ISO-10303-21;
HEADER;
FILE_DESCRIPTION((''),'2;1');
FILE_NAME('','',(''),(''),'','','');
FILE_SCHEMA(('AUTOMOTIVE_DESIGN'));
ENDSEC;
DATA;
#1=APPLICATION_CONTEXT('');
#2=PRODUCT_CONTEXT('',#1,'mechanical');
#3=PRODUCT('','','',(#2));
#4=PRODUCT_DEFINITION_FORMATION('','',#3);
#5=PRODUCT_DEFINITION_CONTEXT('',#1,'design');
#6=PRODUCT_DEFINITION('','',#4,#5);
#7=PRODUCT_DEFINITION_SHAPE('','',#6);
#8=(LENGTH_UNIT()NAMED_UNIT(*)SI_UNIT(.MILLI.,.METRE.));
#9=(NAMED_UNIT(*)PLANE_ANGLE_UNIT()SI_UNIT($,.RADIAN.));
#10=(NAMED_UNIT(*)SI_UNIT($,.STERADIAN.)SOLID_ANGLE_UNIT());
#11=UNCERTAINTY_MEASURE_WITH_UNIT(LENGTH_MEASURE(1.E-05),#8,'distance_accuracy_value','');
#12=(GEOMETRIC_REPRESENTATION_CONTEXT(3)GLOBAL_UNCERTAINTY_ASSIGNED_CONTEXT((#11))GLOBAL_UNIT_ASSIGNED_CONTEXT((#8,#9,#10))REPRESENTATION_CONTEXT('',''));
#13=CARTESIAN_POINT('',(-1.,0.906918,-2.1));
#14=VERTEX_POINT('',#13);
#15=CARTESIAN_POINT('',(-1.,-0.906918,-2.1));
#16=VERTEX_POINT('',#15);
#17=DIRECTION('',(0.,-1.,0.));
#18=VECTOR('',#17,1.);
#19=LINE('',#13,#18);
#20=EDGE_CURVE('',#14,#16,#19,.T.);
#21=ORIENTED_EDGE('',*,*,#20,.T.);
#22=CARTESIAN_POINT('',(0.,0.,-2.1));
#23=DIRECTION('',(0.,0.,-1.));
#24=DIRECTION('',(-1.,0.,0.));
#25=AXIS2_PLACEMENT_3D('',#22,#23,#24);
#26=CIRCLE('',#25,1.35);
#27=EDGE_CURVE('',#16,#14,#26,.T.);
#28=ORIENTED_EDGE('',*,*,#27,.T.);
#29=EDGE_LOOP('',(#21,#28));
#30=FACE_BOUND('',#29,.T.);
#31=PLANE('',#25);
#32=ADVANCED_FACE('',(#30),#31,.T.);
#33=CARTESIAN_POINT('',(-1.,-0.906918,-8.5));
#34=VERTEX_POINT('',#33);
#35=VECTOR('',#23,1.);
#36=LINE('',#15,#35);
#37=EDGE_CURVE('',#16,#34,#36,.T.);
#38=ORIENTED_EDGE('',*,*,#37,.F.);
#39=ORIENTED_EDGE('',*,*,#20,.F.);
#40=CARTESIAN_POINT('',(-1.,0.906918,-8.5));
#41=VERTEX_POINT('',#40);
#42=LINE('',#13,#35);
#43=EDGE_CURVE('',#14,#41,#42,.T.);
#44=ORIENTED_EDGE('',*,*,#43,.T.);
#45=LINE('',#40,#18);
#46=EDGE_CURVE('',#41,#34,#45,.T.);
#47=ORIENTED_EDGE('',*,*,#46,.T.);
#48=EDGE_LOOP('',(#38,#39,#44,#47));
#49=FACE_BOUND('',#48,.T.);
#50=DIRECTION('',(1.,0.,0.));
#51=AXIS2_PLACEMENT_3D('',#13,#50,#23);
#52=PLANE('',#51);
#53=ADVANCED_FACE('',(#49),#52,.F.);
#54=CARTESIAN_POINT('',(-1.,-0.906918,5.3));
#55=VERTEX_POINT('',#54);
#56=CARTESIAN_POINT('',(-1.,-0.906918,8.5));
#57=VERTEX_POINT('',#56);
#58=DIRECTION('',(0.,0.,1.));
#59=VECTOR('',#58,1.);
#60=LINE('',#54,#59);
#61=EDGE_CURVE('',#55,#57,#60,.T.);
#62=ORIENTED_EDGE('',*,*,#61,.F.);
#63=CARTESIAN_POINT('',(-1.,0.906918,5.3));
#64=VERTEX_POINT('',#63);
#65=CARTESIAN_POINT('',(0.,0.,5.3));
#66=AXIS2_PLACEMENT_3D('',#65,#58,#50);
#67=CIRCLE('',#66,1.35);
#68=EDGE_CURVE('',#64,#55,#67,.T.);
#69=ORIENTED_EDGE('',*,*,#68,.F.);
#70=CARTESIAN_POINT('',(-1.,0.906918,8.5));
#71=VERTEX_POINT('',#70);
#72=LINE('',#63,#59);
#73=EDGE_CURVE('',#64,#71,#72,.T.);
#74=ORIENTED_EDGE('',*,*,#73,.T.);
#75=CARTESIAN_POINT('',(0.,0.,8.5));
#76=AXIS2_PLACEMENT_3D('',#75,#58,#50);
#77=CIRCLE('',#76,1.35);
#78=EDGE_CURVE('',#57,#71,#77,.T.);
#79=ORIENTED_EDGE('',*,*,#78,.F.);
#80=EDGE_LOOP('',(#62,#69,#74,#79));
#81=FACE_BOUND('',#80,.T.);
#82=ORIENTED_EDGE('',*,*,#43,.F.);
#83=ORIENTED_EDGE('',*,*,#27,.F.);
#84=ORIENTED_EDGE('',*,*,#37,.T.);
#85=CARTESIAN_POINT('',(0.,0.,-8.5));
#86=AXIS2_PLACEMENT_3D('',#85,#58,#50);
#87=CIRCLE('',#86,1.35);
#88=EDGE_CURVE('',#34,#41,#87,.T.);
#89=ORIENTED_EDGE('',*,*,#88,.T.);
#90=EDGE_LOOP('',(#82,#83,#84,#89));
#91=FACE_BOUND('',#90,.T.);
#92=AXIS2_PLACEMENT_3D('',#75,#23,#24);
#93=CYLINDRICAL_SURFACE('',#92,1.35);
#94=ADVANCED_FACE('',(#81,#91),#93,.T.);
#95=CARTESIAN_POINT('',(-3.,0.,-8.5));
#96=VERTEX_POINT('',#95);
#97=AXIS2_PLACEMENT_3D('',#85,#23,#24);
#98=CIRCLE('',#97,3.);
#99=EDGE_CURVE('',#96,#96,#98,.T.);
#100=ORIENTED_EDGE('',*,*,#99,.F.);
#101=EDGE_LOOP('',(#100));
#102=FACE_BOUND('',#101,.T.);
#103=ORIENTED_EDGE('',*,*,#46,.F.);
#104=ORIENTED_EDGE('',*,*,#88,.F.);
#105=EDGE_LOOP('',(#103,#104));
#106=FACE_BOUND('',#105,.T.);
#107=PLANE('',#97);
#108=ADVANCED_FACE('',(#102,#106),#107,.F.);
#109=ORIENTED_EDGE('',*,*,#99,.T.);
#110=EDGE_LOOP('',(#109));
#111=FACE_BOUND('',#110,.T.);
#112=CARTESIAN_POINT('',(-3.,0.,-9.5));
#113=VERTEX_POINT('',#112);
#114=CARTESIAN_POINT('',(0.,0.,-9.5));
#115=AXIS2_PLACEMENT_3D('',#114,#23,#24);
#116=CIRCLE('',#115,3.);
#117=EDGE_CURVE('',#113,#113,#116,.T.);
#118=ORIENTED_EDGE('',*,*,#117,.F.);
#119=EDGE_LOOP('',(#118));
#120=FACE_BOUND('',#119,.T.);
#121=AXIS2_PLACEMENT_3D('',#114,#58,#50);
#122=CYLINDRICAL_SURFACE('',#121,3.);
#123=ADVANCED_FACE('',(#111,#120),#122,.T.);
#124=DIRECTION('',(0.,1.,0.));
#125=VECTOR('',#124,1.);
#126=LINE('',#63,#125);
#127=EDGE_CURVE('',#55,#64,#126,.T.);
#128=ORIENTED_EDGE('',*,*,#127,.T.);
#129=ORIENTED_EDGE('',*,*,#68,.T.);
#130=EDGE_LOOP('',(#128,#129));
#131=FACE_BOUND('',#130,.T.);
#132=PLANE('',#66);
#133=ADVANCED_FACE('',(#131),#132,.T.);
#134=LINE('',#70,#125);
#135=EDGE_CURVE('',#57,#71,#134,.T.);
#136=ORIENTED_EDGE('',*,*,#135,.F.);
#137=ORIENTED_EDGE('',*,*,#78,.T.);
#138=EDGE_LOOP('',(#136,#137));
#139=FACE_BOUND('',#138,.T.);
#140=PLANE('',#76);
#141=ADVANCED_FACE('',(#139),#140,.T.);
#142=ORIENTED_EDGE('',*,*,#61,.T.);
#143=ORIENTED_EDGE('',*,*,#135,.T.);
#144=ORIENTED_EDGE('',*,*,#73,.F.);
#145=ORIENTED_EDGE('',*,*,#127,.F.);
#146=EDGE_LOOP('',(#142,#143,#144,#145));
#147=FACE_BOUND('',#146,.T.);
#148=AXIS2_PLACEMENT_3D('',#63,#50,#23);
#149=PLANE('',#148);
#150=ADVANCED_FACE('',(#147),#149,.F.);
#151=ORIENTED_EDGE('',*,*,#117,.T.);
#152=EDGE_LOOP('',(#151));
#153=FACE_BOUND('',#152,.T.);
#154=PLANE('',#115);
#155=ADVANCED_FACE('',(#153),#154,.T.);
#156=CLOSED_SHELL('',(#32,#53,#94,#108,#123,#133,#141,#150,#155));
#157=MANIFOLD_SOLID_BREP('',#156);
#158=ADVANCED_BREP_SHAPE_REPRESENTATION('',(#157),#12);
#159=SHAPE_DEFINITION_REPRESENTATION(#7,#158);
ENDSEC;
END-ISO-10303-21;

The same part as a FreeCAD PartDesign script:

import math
import FreeCAD as App
import Part
import Sketcher
Q = App.Units.Quantity

doc = App.newDocument("Part")
body = doc.addObject("PartDesign::Body", "Body")

# Sketch on XY plane
sketch1 = body.newObject("Sketcher::SketchObject", "Sketch")
sketch1.AttachmentSupport = (doc.getObject("XY_Plane"), [""])
sketch1.MapMode = "FlatFace"
sketch1.addGeometry(Part.Circle(App.Vector(0, 0, 0), App.Vector(0, 0, 1), 1.4), False)
sketch1.addConstraint(Sketcher.Constraint("Coincident", 0, 3, -1, 1))
sketch1.addConstraint(Sketcher.Constraint("Diameter", 0, Q("2.7 mm")))
pad1 = body.newObject("PartDesign::Pad", "Pad")
pad1.Profile = sketch1
pad1.Length = 17
pad1.Midplane = True

# Sketch on XY plane
sketch2 = body.newObject("Sketcher::SketchObject", "Sketch001")
sketch2.AttachmentSupport = (doc.getObject("XY_Plane"), [""])
sketch2.MapMode = "FlatFace"
sketch2.AttachmentOffset = App.Placement(App.Vector(0, 0, -8.5), App.Rotation())
sketch2.addGeometry(Part.LineSegment(App.Vector(-1, 0.9, 0), App.Vector(-1, -0.9, 0)), False)
sketch2.addGeometry(Part.ArcOfCircle(Part.Circle(App.Vector(0, 0, 0), App.Vector(0, 0, 1), 1.3), math.radians(138), math.radians(222)), False)
sketch2.addConstraint(Sketcher.Constraint("Coincident", 0, 1, 1, 1))
sketch2.addConstraint(Sketcher.Constraint("Coincident", 1, 2, 0, 2))
sketch2.addConstraint(Sketcher.Constraint("Vertical", 0))
sketch2.addConstraint(Sketcher.Constraint("Coincident", 1, 3, -1, 1))
sketch2.addConstraint(Sketcher.Constraint("Radius", 1, Q("1.35 mm")))
sketch2.addConstraint(Sketcher.Constraint("DistanceX", 0, 1, -1, 1, Q("1 mm")))
pocket1 = body.newObject("PartDesign::Pocket", "Pocket")
pocket1.Profile = sketch2
pocket1.Length = 6.4
pocket1.Reversed = True

# Sketch on XY plane
sketch3 = body.newObject("Sketcher::SketchObject", "Sketch002")
sketch3.AttachmentSupport = (doc.getObject("XY_Plane"), [""])
sketch3.MapMode = "FlatFace"
sketch3.AttachmentOffset = App.Placement(App.Vector(0, 0, 8.5), App.Rotation())
sketch3.addGeometry(Part.LineSegment(App.Vector(-1, -0.9, 0), App.Vector(-1, 0.9, 0)), False)
sketch3.addGeometry(Part.ArcOfCircle(Part.Circle(App.Vector(0, 0, 0), App.Vector(0, 0, 1), 1.3), math.radians(138), math.radians(222)), False)
sketch3.addConstraint(Sketcher.Constraint("Coincident", 0, 1, 1, 2))
sketch3.addConstraint(Sketcher.Constraint("Coincident", 1, 1, 0, 2))
sketch3.addConstraint(Sketcher.Constraint("Vertical", 0))
sketch3.addConstraint(Sketcher.Constraint("Coincident", 1, 3, -1, 1))
sketch3.addConstraint(Sketcher.Constraint("Radius", 1, Q("1.35 mm")))
sketch3.addConstraint(Sketcher.Constraint("DistanceX", 0, 1, -1, 1, Q("1 mm")))
pocket2 = body.newObject("PartDesign::Pocket", "Pocket001")
pocket2.Profile = sketch3
pocket2.Length = 3.2

# Sketch on XY plane
sketch4 = body.newObject("Sketcher::SketchObject", "Sketch003")
sketch4.AttachmentSupport = (doc.getObject("XY_Plane"), [""])
sketch4.MapMode = "FlatFace"
sketch4.AttachmentOffset = App.Placement(App.Vector(0, 0, -8.5), App.Rotation())
sketch4.addGeometry(Part.Circle(App.Vector(0, 0, 0), App.Vector(0, 0, 1), 3), False)
sketch4.addConstraint(Sketcher.Constraint("Coincident", 0, 3, -1, 1))
sketch4.addConstraint(Sketcher.Constraint("Diameter", 0, Q("6 mm")))
pad2 = body.newObject("PartDesign::Pad", "Pad001")
pad2.Profile = sketch4
pad2.Length = 1
pad2.Reversed = True

doc.recompute()
